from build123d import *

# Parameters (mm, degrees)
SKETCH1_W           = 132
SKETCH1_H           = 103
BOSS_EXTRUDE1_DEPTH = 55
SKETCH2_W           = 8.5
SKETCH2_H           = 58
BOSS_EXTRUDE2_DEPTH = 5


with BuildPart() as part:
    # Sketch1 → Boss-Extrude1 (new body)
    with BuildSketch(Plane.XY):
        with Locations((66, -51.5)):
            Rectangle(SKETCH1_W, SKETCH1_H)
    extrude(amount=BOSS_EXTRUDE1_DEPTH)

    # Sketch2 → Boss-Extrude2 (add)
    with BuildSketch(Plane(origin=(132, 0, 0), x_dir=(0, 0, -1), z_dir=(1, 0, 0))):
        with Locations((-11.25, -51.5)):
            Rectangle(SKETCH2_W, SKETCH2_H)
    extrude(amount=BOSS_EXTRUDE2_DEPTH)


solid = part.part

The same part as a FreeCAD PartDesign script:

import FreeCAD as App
import Part
import Sketcher
from FreeCAD import Vector
Q = App.Units.Quantity

doc = App.newDocument("Part")
body = doc.addObject("PartDesign::Body", "Body")

# Sketch on XY plane
sketch1 = doc.addObject("Sketcher::SketchObject", "Sketch")
body.addObject(sketch1)
sketch1.AttachmentSupport = (doc.XY_Plane, [""])
sketch1.MapMode = "FlatFace"
sketch1.addGeometry([
    Part.LineSegment(Vector(0, 0, 0), Vector(0, -103, 0)),
    Part.LineSegment(Vector(0, -103, 0), Vector(132, -103, 0)),
    Part.LineSegment(Vector(132, -103, 0), Vector(132, 0, 0)),
    Part.LineSegment(Vector(132, 0, 0), Vector(0, 0, 0)),
], False)
sketch1.addConstraint([
    Sketcher.Constraint("Coincident", 0, 2, 1, 1),
    Sketcher.Constraint("Coincident", 1, 2, 2, 1),
    Sketcher.Constraint("Coincident", 2, 2, 3, 1),
    Sketcher.Constraint("Coincident", 3, 2, 0, 1),
    Sketcher.Constraint("Vertical", 0),
    Sketcher.Constraint("Horizontal", 1),
    Sketcher.Constraint("Vertical", 2),
    Sketcher.Constraint("Horizontal", 3),
    Sketcher.Constraint("Coincident", 3, 2, -1, 1),
    Sketcher.Constraint("DistanceX", 1, 1, 1, 2, Q("132 mm")),
    Sketcher.Constraint("DistanceY", 0, 2, 0, 1, Q("103 mm")),
])
pad1 = doc.addObject("PartDesign::Pad", "Pad")
body.addObject(pad1)
pad1.Profile = sketch1
pad1.Length = 55

# Sketch on YZ plane
sketch2 = doc.addObject("Sketcher::SketchObject", "Sketch001")
body.addObject(sketch2)
sketch2.AttachmentSupport = (doc.YZ_Plane, [""])
sketch2.MapMode = "FlatFace"
sketch2.AttachmentOffset = App.Placement(Vector(0, 0, 132), App.Rotation())
sketch2.addGeometry([
    Part.LineSegment(Vector(-22, 16, 0), Vector(-80, 16, 0)),
    Part.LineSegment(Vector(-80, 16, 0), Vector(-80, 7, 0)),
    Part.LineSegment(Vector(-80, 7, 0), Vector(-22, 7, 0)),
    Part.LineSegment(Vector(-22, 7, 0), Vector(-22, 16, 0)),
], False)
sketch2.addConstraint([
    Sketcher.Constraint("Coincident", 0, 2, 1, 1),
    Sketcher.Constraint("Coincident", 1, 2, 2, 1),
    Sketcher.Constraint("Coincident", 2, 2, 3, 1),
    Sketcher.Constraint("Coincident", 3, 2, 0, 1),
    Sketcher.Constraint("Horizontal", 0),
    Sketcher.Constraint("Vertical", 1),
    Sketcher.Constraint("Horizontal", 2),
    Sketcher.Constraint("Vertical", 3),
    Sketcher.Constraint("DistanceX", 0, 2, 0, 1, Q("58 mm")),
    Sketcher.Constraint("DistanceY", 1, 2, 1, 1, Q("8.5 mm")),
    Sketcher.Constraint("DistanceY", -1, 1, 1, 2, Q("7 mm")),
    Sketcher.Constraint("DistanceX", 0, 2, -1, 1, Q("80.5 mm")),
])
pad2 = doc.addObject("PartDesign::Pad", "Pad001")
body.addObject(pad2)
pad2.Profile = sketch2
pad2.Length = 5

doc.recompute()
